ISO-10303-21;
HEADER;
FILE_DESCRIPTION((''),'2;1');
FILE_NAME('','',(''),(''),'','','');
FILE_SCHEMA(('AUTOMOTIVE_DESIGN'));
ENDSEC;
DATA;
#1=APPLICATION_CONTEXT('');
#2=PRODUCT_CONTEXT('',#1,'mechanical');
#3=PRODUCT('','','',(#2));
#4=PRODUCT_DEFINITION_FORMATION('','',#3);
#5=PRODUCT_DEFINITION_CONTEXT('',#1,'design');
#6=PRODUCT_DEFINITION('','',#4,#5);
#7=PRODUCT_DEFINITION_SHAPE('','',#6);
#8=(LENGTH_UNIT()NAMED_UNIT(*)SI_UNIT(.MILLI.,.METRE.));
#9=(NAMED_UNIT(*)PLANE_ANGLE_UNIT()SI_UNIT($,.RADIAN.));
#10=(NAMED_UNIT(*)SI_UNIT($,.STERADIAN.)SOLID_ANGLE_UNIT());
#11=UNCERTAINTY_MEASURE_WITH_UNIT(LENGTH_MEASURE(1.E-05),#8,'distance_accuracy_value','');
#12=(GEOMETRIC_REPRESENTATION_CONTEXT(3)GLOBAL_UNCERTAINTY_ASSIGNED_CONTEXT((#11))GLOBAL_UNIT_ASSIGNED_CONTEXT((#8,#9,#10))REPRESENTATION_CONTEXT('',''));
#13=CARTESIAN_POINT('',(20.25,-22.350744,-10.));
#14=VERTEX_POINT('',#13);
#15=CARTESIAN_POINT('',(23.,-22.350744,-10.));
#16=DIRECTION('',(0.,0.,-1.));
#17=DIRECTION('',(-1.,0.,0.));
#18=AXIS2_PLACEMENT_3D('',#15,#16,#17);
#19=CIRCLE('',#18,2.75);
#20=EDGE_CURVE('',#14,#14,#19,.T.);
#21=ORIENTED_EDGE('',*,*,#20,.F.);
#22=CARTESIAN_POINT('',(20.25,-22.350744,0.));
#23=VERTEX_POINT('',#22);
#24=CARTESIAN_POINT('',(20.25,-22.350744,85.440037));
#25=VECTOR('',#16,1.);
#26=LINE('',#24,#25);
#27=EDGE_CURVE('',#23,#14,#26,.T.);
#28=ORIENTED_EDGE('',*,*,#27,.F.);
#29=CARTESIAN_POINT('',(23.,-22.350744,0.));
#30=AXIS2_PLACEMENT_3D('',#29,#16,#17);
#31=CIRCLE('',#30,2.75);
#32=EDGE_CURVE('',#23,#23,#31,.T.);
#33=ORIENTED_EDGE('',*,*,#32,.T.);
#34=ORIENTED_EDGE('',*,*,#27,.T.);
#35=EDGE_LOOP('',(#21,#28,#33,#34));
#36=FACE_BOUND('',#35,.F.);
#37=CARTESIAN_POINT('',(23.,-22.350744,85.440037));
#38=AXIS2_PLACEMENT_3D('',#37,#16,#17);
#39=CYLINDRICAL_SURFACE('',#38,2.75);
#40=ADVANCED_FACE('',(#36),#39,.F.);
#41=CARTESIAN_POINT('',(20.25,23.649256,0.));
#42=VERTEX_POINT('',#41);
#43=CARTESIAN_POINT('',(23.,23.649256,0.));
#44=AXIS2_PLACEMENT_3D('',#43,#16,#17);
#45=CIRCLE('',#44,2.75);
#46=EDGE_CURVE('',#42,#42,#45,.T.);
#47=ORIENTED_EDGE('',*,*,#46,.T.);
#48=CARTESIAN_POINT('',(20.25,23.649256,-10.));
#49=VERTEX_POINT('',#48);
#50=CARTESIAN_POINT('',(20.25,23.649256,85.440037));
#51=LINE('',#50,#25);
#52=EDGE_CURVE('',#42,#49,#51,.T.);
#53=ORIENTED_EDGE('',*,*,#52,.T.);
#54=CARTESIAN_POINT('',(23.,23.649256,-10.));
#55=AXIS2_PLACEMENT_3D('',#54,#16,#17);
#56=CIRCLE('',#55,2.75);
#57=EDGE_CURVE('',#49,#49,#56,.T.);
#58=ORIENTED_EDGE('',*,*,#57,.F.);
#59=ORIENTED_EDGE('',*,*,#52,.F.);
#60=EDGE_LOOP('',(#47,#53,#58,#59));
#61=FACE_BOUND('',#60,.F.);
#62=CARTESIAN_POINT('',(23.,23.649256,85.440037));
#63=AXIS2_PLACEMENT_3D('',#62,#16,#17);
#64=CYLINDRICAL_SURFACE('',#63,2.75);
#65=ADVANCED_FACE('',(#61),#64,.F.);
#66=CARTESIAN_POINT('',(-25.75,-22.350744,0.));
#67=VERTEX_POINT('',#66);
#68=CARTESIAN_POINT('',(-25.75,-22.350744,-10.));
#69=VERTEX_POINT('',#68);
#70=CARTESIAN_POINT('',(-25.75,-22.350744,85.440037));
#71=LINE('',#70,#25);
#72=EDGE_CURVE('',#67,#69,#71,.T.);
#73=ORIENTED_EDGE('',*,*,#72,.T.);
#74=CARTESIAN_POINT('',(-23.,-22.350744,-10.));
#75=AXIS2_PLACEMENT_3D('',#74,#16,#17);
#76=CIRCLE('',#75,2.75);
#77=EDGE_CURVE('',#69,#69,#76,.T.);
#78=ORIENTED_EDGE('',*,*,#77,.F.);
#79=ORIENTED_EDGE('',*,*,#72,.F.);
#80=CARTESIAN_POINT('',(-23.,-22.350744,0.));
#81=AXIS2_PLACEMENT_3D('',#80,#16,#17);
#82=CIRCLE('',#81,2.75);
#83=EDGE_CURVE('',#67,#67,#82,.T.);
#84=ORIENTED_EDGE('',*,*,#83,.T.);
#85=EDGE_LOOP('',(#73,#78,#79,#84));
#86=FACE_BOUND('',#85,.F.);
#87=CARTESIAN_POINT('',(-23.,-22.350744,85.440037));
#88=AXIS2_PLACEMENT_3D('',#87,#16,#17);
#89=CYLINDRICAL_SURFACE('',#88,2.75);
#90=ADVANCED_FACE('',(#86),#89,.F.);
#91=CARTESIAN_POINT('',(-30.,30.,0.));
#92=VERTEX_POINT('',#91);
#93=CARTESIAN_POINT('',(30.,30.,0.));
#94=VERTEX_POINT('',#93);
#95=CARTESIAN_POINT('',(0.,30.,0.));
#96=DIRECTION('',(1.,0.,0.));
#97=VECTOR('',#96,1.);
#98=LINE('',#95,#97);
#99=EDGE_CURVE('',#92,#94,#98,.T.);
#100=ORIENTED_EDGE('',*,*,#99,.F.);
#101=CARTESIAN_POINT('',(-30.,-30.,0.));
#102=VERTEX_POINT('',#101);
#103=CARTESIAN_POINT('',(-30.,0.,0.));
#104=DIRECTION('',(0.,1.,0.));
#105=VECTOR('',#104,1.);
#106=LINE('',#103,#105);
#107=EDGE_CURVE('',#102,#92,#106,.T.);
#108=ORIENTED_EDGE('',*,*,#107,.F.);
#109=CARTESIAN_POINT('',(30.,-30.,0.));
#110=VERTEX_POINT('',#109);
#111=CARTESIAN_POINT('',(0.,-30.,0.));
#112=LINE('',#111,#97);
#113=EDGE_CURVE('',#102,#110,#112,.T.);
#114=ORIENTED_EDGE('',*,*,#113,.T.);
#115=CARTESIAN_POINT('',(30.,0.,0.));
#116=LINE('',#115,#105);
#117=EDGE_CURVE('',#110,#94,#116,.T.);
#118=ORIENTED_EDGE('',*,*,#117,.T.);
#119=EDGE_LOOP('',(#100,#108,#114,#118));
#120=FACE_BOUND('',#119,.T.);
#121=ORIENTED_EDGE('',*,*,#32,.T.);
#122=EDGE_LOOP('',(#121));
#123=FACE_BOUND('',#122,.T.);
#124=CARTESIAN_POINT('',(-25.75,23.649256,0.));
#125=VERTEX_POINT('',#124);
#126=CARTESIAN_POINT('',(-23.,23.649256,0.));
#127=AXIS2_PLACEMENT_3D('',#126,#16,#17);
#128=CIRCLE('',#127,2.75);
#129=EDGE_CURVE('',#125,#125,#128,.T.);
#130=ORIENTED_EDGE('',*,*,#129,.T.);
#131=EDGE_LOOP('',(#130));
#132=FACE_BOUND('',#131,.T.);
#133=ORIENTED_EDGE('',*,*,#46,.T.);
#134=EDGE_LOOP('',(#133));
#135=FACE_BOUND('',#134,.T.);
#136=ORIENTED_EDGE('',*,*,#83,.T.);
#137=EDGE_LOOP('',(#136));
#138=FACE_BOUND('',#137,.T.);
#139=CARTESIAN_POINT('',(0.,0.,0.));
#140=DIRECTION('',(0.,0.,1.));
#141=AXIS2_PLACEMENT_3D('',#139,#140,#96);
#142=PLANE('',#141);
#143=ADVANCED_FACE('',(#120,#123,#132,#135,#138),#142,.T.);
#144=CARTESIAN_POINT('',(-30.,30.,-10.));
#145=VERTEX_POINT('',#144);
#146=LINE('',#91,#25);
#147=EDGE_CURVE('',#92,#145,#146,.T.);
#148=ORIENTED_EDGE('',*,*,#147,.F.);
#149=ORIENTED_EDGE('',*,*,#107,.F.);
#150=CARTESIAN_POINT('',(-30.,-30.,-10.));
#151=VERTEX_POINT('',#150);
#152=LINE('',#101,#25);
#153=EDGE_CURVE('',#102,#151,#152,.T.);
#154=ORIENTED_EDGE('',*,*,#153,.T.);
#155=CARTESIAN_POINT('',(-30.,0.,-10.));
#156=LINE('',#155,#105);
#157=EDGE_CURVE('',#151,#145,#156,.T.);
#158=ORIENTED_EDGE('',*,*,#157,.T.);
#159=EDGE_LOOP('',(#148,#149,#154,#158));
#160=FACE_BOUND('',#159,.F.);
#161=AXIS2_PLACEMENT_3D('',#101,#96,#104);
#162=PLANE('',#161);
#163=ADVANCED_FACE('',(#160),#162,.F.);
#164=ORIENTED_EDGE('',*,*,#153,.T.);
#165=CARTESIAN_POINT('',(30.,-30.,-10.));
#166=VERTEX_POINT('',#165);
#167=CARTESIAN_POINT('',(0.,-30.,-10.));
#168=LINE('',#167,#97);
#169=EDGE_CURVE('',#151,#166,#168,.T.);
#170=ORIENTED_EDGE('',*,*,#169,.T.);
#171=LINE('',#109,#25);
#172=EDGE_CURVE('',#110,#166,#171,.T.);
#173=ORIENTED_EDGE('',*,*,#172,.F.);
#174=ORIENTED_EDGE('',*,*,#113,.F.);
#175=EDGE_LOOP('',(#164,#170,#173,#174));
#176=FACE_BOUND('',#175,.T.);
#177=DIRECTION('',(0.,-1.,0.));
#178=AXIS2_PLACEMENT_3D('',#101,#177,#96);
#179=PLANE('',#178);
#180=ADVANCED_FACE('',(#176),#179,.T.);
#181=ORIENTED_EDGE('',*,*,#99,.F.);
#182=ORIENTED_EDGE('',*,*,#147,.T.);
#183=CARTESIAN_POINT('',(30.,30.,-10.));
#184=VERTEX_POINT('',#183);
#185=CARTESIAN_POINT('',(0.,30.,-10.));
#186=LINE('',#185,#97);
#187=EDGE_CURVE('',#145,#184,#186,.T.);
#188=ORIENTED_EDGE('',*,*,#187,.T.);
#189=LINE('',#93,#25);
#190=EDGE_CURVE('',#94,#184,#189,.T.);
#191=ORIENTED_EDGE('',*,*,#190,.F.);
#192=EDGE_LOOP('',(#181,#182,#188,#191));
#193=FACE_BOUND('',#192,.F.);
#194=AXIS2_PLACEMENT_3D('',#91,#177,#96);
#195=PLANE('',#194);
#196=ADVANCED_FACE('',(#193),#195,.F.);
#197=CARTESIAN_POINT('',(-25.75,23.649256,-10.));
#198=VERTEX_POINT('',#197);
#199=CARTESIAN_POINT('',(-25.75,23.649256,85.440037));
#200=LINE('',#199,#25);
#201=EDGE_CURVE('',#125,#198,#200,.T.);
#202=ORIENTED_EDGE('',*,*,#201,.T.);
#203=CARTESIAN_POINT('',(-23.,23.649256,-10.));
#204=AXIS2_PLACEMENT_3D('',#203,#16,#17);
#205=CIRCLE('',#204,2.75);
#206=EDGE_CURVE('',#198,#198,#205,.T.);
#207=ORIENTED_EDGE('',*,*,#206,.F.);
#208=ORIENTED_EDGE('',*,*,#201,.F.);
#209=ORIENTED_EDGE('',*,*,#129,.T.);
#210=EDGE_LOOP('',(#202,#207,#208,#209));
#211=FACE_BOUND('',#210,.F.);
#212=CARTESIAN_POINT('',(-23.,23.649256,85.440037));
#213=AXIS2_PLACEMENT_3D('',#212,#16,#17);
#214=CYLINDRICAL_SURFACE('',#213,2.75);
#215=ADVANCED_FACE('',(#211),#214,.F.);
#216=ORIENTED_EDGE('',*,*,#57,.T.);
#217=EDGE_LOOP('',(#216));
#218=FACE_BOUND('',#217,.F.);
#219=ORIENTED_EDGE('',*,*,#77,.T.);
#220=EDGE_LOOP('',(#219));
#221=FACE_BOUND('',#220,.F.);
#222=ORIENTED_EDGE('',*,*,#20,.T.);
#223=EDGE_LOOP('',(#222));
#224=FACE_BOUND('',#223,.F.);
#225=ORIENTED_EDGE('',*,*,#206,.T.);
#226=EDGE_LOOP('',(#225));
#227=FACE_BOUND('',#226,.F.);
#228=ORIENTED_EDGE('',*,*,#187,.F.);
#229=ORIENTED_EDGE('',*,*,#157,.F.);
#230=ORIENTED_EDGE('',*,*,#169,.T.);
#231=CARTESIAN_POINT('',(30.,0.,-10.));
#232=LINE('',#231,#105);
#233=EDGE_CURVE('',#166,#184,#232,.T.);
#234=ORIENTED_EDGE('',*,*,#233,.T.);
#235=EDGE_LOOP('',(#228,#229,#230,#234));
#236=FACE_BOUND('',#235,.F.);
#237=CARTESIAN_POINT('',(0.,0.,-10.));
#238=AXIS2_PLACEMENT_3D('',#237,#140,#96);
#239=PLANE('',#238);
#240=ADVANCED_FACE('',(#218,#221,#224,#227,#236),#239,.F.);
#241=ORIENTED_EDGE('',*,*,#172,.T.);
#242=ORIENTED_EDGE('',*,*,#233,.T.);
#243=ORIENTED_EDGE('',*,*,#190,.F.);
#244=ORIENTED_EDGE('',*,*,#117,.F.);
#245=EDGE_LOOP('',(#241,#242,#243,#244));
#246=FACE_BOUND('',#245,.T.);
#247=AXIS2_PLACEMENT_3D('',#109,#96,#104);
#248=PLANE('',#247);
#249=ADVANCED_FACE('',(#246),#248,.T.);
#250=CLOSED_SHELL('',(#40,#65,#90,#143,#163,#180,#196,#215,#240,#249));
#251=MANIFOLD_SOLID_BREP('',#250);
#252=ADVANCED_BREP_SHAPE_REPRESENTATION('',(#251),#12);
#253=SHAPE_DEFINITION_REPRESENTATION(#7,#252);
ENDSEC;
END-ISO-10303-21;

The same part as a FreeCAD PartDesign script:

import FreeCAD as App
import Part
import Sketcher

V = App.Vector
Q = App.Units.Quantity

doc = App.newDocument("Part")
params = doc.addObject("Spreadsheet::Sheet", "Params")
for row, (alias, value) in enumerate([
    ("sketch1_width", "60 mm"),
    ("pad1_length", "10 mm"),
    ("sketch2_diameter", "5.5 mm"),
    ("hole_diameter", "5.5 mm"),
], start=1):
    params.set(f"A{row}", alias)
    params.set(f"B{row}", "=" + value)
    params.setAlias(f"B{row}", alias)

body = doc.addObject("PartDesign::Body", "Body")

sketch1 = doc.addObject("Sketcher::SketchObject", "Sketch")
body.addObject(sketch1)
sketch1.AttachmentSupport = (doc.XY_Plane, [""])
sketch1.MapMode = "FlatFace"
sketch1.addGeometry([
    Part.LineSegment(V(-30, 30, 0), V(-30, -30, 0)),
    Part.LineSegment(V(-30, -30, 0), V(30, -30, 0)),
    Part.LineSegment(V(30, -30, 0), V(30, 30, 0)),
    Part.LineSegment(V(30, 30, 0), V(-30, 30, 0)),
], False)
sketch1.addConstraint([
    Sketcher.Constraint("Coincident", 0, 2, 1, 1),
    Sketcher.Constraint("Coincident", 1, 2, 2, 1),
    Sketcher.Constraint("Coincident", 2, 2, 3, 1),
    Sketcher.Constraint("Coincident", 3, 2, 0, 1),
    Sketcher.Constraint("Vertical", 0),
    Sketcher.Constraint("Horizontal", 1),
    Sketcher.Constraint("Vertical", 2),
    Sketcher.Constraint("Horizontal", 3),
    Sketcher.Constraint("Symmetric", 0, 2, 2, 2, -1, 1),
    Sketcher.Constraint("Equal", 3, 0),
    Sketcher.Constraint("DistanceX", 1, 1, 1, 2, Q("60 mm")),
])
sketch1.setExpression("Constraints[10]", "Params.sketch1_width")
pad1 = doc.addObject("PartDesign::Pad", "Pad")
body.addObject(pad1)
pad1.Profile = sketch1
pad1.setExpression("Length", "Params.pad1_length")
pad1.Reversed = True

sketch2 = doc.addObject("Sketcher::SketchObject", "Sketch001")
body.addObject(sketch2)
sketch2.AttachmentSupport = (doc.XY_Plane, [""])
sketch2.MapMode = "FlatFace"
sketch2.addGeometry([
    Part.Circle(V(23, -22.350744, 0), V(0, 0, 1), 2.75),
    Part.Circle(V(-23, -22.350744, 0), V(0, 0, 1), 2.75),
    Part.Circle(V(-23, 23.649256, 0), V(0, 0, 1), 2.75),
    Part.Circle(V(23, 23.649256, 0), V(0, 0, 1), 2.75),
], False)
sketch2.addConstraint([
    Sketcher.Constraint("Equal", 0, 1),
    Sketcher.Constraint("Equal", 1, 2),
    Sketcher.Constraint("Equal", 2, 3),
    Sketcher.Constraint("Symmetric", 0, 3, 1, 3, -2),
    Sketcher.Constraint("Symmetric", 2, 3, 3, 3, -2),
    Sketcher.Constraint("Vertical", 1, 3, 2, 3),
    Sketcher.Constraint("Diameter", 0, Q("5.5 mm")),
    Sketcher.Constraint("DistanceX", -1, 1, 0, 3, Q("23 mm")),
    Sketcher.Constraint("DistanceY", 1, 3, 2, 3, Q("46 mm")),
    Sketcher.Constraint("DistanceY", 0, 3, -1, 1, Q("22.350744 mm")),
])
sketch2.setExpression("Constraints[6]", "Params.sketch2_diameter")
doc.recompute()
hole = doc.addObject("PartDesign::Hole", "Hole")
body.addObject(hole)
hole.Profile = sketch2
hole.ThreadType = "None"
hole.setExpression("Diameter", "Params.hole_diameter")
hole.DepthType = "ThroughAll"

doc.recompute()
